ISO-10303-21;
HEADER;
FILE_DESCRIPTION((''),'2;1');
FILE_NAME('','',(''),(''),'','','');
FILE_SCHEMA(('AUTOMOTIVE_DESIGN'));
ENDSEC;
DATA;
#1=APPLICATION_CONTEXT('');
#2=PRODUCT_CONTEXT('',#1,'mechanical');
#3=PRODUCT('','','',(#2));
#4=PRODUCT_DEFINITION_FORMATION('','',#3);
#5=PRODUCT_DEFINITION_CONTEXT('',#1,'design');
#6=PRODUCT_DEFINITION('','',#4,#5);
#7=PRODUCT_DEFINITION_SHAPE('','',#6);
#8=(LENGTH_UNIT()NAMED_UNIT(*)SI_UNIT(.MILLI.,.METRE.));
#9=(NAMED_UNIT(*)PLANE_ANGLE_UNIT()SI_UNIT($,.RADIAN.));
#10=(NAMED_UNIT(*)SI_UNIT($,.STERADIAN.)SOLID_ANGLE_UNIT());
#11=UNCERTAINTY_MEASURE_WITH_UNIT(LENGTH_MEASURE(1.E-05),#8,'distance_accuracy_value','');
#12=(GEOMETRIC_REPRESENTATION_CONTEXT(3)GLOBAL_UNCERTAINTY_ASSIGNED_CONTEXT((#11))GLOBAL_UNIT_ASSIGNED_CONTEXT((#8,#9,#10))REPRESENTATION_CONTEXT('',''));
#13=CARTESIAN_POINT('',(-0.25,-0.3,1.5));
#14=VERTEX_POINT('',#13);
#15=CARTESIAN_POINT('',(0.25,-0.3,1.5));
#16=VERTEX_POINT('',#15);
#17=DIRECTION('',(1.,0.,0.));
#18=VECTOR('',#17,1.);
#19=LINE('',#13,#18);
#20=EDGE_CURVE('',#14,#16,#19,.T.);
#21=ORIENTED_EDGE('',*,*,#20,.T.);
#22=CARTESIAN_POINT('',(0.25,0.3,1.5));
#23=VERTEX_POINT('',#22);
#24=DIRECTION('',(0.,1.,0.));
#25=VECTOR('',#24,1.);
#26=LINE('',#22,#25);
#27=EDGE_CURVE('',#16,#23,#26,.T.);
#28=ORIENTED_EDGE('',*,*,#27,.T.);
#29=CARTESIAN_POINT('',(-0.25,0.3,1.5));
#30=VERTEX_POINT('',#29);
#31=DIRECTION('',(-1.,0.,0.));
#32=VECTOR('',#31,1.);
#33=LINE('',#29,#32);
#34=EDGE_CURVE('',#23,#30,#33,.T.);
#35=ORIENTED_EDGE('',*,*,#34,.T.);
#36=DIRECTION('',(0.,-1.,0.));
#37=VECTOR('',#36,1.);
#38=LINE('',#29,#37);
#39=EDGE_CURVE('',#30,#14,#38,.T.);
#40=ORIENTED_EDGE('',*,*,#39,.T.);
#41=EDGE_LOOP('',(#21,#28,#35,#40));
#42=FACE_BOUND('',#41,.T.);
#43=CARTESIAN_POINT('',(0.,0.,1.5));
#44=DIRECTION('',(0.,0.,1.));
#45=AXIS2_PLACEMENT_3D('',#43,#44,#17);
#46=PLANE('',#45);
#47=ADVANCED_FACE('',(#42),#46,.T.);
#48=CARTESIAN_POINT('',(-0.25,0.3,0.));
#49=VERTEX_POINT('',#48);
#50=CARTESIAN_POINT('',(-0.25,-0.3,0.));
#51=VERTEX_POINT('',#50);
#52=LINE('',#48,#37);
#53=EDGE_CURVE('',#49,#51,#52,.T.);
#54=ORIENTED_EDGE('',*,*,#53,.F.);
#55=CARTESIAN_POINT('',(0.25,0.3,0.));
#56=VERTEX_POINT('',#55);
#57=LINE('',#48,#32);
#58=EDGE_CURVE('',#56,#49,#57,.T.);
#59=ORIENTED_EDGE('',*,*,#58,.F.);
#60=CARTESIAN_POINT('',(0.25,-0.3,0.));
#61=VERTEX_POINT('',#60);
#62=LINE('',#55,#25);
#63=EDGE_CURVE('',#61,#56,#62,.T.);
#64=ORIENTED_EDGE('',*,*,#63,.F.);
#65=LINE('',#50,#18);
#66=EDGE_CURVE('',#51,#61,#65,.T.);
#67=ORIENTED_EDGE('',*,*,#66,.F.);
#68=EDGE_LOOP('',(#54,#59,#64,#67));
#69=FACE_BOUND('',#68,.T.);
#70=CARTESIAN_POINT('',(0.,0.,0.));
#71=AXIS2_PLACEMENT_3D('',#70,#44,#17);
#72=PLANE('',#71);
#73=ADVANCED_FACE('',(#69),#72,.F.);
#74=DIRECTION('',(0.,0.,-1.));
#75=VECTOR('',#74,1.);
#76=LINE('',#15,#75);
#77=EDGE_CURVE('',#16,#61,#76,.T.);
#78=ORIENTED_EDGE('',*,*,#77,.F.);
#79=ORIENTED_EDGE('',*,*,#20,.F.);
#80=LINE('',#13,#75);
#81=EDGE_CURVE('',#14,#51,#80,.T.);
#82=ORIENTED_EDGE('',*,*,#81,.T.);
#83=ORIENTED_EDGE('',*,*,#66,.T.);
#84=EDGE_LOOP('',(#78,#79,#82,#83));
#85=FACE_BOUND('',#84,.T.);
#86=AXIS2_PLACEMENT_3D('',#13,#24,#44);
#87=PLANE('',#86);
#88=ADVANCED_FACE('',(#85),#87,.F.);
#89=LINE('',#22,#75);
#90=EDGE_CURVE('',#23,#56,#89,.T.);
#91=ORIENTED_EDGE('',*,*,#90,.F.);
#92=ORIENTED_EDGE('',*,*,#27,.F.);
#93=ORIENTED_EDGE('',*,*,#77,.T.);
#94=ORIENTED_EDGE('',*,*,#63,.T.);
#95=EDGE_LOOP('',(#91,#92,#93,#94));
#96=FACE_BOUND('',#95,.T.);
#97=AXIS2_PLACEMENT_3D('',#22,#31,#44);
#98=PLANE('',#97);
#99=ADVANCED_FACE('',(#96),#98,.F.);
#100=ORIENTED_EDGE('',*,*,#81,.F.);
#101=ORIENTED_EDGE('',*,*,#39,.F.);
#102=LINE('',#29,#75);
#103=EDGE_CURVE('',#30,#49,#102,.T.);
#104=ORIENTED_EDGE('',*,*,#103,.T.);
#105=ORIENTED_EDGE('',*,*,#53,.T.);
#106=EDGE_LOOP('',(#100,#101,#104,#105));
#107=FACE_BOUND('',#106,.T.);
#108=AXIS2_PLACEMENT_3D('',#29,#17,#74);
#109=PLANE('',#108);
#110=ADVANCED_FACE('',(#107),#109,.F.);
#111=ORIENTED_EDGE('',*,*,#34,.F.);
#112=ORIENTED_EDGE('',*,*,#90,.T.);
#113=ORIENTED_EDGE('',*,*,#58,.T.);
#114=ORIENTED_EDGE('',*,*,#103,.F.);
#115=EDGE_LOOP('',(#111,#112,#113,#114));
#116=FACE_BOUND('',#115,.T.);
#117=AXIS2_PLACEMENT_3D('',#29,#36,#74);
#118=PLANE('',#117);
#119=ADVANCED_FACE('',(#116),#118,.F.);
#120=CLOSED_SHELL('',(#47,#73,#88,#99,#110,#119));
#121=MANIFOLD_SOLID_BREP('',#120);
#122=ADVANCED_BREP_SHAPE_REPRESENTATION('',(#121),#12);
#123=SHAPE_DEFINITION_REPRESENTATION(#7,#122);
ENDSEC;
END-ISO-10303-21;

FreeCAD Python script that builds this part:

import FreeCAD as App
import Part
import Sketcher
from FreeCAD import Vector

doc = App.newDocument("Part")
body = doc.addObject("PartDesign::Body", "Body")

sketch1 = body.newObject("Sketcher::SketchObject", "Sketch")
sketch1.AttachmentSupport = (doc.getObject("XY_Plane"), [""])
sketch1.MapMode = "FlatFace"
sketch1.addGeometry([
    Part.LineSegment(Vector(-0.25, 0.3, 0), Vector(-0.25, -0.3, 0)),
    Part.LineSegment(Vector(-0.25, -0.3, 0), Vector(0.25, -0.3, 0)),
    Part.LineSegment(Vector(0.25, -0.3, 0), Vector(0.25, 0.3, 0)),
    Part.LineSegment(Vector(0.25, 0.3, 0), Vector(-0.25, 0.3, 0)),
], False)
sketch1.addConstraint([
    Sketcher.Constraint("Coincident", 0, 2, 1, 1),
    Sketcher.Constraint("Coincident", 1, 2, 2, 1),
    Sketcher.Constraint("Coincident", 2, 2, 3, 1),
    Sketcher.Constraint("Coincident", 3, 2, 0, 1),
    Sketcher.Constraint("Vertical", 0),
    Sketcher.Constraint("Horizontal", 1),
    Sketcher.Constraint("Vertical", 2),
    Sketcher.Constraint("Horizontal", 3),
    Sketcher.Constraint("Symmetric", 0, 2, 2, 2, -1, 1),
    Sketcher.Constraint("DistanceX", 1, 1, 1, 2, 0.5),
    Sketcher.Constraint("DistanceY", 0, 2, 0, 1, 0.6),
])
pad1 = body.newObject("PartDesign::Pad", "Pad")
pad1.Profile = sketch1
pad1.Length = 1.5

doc.recompute()
